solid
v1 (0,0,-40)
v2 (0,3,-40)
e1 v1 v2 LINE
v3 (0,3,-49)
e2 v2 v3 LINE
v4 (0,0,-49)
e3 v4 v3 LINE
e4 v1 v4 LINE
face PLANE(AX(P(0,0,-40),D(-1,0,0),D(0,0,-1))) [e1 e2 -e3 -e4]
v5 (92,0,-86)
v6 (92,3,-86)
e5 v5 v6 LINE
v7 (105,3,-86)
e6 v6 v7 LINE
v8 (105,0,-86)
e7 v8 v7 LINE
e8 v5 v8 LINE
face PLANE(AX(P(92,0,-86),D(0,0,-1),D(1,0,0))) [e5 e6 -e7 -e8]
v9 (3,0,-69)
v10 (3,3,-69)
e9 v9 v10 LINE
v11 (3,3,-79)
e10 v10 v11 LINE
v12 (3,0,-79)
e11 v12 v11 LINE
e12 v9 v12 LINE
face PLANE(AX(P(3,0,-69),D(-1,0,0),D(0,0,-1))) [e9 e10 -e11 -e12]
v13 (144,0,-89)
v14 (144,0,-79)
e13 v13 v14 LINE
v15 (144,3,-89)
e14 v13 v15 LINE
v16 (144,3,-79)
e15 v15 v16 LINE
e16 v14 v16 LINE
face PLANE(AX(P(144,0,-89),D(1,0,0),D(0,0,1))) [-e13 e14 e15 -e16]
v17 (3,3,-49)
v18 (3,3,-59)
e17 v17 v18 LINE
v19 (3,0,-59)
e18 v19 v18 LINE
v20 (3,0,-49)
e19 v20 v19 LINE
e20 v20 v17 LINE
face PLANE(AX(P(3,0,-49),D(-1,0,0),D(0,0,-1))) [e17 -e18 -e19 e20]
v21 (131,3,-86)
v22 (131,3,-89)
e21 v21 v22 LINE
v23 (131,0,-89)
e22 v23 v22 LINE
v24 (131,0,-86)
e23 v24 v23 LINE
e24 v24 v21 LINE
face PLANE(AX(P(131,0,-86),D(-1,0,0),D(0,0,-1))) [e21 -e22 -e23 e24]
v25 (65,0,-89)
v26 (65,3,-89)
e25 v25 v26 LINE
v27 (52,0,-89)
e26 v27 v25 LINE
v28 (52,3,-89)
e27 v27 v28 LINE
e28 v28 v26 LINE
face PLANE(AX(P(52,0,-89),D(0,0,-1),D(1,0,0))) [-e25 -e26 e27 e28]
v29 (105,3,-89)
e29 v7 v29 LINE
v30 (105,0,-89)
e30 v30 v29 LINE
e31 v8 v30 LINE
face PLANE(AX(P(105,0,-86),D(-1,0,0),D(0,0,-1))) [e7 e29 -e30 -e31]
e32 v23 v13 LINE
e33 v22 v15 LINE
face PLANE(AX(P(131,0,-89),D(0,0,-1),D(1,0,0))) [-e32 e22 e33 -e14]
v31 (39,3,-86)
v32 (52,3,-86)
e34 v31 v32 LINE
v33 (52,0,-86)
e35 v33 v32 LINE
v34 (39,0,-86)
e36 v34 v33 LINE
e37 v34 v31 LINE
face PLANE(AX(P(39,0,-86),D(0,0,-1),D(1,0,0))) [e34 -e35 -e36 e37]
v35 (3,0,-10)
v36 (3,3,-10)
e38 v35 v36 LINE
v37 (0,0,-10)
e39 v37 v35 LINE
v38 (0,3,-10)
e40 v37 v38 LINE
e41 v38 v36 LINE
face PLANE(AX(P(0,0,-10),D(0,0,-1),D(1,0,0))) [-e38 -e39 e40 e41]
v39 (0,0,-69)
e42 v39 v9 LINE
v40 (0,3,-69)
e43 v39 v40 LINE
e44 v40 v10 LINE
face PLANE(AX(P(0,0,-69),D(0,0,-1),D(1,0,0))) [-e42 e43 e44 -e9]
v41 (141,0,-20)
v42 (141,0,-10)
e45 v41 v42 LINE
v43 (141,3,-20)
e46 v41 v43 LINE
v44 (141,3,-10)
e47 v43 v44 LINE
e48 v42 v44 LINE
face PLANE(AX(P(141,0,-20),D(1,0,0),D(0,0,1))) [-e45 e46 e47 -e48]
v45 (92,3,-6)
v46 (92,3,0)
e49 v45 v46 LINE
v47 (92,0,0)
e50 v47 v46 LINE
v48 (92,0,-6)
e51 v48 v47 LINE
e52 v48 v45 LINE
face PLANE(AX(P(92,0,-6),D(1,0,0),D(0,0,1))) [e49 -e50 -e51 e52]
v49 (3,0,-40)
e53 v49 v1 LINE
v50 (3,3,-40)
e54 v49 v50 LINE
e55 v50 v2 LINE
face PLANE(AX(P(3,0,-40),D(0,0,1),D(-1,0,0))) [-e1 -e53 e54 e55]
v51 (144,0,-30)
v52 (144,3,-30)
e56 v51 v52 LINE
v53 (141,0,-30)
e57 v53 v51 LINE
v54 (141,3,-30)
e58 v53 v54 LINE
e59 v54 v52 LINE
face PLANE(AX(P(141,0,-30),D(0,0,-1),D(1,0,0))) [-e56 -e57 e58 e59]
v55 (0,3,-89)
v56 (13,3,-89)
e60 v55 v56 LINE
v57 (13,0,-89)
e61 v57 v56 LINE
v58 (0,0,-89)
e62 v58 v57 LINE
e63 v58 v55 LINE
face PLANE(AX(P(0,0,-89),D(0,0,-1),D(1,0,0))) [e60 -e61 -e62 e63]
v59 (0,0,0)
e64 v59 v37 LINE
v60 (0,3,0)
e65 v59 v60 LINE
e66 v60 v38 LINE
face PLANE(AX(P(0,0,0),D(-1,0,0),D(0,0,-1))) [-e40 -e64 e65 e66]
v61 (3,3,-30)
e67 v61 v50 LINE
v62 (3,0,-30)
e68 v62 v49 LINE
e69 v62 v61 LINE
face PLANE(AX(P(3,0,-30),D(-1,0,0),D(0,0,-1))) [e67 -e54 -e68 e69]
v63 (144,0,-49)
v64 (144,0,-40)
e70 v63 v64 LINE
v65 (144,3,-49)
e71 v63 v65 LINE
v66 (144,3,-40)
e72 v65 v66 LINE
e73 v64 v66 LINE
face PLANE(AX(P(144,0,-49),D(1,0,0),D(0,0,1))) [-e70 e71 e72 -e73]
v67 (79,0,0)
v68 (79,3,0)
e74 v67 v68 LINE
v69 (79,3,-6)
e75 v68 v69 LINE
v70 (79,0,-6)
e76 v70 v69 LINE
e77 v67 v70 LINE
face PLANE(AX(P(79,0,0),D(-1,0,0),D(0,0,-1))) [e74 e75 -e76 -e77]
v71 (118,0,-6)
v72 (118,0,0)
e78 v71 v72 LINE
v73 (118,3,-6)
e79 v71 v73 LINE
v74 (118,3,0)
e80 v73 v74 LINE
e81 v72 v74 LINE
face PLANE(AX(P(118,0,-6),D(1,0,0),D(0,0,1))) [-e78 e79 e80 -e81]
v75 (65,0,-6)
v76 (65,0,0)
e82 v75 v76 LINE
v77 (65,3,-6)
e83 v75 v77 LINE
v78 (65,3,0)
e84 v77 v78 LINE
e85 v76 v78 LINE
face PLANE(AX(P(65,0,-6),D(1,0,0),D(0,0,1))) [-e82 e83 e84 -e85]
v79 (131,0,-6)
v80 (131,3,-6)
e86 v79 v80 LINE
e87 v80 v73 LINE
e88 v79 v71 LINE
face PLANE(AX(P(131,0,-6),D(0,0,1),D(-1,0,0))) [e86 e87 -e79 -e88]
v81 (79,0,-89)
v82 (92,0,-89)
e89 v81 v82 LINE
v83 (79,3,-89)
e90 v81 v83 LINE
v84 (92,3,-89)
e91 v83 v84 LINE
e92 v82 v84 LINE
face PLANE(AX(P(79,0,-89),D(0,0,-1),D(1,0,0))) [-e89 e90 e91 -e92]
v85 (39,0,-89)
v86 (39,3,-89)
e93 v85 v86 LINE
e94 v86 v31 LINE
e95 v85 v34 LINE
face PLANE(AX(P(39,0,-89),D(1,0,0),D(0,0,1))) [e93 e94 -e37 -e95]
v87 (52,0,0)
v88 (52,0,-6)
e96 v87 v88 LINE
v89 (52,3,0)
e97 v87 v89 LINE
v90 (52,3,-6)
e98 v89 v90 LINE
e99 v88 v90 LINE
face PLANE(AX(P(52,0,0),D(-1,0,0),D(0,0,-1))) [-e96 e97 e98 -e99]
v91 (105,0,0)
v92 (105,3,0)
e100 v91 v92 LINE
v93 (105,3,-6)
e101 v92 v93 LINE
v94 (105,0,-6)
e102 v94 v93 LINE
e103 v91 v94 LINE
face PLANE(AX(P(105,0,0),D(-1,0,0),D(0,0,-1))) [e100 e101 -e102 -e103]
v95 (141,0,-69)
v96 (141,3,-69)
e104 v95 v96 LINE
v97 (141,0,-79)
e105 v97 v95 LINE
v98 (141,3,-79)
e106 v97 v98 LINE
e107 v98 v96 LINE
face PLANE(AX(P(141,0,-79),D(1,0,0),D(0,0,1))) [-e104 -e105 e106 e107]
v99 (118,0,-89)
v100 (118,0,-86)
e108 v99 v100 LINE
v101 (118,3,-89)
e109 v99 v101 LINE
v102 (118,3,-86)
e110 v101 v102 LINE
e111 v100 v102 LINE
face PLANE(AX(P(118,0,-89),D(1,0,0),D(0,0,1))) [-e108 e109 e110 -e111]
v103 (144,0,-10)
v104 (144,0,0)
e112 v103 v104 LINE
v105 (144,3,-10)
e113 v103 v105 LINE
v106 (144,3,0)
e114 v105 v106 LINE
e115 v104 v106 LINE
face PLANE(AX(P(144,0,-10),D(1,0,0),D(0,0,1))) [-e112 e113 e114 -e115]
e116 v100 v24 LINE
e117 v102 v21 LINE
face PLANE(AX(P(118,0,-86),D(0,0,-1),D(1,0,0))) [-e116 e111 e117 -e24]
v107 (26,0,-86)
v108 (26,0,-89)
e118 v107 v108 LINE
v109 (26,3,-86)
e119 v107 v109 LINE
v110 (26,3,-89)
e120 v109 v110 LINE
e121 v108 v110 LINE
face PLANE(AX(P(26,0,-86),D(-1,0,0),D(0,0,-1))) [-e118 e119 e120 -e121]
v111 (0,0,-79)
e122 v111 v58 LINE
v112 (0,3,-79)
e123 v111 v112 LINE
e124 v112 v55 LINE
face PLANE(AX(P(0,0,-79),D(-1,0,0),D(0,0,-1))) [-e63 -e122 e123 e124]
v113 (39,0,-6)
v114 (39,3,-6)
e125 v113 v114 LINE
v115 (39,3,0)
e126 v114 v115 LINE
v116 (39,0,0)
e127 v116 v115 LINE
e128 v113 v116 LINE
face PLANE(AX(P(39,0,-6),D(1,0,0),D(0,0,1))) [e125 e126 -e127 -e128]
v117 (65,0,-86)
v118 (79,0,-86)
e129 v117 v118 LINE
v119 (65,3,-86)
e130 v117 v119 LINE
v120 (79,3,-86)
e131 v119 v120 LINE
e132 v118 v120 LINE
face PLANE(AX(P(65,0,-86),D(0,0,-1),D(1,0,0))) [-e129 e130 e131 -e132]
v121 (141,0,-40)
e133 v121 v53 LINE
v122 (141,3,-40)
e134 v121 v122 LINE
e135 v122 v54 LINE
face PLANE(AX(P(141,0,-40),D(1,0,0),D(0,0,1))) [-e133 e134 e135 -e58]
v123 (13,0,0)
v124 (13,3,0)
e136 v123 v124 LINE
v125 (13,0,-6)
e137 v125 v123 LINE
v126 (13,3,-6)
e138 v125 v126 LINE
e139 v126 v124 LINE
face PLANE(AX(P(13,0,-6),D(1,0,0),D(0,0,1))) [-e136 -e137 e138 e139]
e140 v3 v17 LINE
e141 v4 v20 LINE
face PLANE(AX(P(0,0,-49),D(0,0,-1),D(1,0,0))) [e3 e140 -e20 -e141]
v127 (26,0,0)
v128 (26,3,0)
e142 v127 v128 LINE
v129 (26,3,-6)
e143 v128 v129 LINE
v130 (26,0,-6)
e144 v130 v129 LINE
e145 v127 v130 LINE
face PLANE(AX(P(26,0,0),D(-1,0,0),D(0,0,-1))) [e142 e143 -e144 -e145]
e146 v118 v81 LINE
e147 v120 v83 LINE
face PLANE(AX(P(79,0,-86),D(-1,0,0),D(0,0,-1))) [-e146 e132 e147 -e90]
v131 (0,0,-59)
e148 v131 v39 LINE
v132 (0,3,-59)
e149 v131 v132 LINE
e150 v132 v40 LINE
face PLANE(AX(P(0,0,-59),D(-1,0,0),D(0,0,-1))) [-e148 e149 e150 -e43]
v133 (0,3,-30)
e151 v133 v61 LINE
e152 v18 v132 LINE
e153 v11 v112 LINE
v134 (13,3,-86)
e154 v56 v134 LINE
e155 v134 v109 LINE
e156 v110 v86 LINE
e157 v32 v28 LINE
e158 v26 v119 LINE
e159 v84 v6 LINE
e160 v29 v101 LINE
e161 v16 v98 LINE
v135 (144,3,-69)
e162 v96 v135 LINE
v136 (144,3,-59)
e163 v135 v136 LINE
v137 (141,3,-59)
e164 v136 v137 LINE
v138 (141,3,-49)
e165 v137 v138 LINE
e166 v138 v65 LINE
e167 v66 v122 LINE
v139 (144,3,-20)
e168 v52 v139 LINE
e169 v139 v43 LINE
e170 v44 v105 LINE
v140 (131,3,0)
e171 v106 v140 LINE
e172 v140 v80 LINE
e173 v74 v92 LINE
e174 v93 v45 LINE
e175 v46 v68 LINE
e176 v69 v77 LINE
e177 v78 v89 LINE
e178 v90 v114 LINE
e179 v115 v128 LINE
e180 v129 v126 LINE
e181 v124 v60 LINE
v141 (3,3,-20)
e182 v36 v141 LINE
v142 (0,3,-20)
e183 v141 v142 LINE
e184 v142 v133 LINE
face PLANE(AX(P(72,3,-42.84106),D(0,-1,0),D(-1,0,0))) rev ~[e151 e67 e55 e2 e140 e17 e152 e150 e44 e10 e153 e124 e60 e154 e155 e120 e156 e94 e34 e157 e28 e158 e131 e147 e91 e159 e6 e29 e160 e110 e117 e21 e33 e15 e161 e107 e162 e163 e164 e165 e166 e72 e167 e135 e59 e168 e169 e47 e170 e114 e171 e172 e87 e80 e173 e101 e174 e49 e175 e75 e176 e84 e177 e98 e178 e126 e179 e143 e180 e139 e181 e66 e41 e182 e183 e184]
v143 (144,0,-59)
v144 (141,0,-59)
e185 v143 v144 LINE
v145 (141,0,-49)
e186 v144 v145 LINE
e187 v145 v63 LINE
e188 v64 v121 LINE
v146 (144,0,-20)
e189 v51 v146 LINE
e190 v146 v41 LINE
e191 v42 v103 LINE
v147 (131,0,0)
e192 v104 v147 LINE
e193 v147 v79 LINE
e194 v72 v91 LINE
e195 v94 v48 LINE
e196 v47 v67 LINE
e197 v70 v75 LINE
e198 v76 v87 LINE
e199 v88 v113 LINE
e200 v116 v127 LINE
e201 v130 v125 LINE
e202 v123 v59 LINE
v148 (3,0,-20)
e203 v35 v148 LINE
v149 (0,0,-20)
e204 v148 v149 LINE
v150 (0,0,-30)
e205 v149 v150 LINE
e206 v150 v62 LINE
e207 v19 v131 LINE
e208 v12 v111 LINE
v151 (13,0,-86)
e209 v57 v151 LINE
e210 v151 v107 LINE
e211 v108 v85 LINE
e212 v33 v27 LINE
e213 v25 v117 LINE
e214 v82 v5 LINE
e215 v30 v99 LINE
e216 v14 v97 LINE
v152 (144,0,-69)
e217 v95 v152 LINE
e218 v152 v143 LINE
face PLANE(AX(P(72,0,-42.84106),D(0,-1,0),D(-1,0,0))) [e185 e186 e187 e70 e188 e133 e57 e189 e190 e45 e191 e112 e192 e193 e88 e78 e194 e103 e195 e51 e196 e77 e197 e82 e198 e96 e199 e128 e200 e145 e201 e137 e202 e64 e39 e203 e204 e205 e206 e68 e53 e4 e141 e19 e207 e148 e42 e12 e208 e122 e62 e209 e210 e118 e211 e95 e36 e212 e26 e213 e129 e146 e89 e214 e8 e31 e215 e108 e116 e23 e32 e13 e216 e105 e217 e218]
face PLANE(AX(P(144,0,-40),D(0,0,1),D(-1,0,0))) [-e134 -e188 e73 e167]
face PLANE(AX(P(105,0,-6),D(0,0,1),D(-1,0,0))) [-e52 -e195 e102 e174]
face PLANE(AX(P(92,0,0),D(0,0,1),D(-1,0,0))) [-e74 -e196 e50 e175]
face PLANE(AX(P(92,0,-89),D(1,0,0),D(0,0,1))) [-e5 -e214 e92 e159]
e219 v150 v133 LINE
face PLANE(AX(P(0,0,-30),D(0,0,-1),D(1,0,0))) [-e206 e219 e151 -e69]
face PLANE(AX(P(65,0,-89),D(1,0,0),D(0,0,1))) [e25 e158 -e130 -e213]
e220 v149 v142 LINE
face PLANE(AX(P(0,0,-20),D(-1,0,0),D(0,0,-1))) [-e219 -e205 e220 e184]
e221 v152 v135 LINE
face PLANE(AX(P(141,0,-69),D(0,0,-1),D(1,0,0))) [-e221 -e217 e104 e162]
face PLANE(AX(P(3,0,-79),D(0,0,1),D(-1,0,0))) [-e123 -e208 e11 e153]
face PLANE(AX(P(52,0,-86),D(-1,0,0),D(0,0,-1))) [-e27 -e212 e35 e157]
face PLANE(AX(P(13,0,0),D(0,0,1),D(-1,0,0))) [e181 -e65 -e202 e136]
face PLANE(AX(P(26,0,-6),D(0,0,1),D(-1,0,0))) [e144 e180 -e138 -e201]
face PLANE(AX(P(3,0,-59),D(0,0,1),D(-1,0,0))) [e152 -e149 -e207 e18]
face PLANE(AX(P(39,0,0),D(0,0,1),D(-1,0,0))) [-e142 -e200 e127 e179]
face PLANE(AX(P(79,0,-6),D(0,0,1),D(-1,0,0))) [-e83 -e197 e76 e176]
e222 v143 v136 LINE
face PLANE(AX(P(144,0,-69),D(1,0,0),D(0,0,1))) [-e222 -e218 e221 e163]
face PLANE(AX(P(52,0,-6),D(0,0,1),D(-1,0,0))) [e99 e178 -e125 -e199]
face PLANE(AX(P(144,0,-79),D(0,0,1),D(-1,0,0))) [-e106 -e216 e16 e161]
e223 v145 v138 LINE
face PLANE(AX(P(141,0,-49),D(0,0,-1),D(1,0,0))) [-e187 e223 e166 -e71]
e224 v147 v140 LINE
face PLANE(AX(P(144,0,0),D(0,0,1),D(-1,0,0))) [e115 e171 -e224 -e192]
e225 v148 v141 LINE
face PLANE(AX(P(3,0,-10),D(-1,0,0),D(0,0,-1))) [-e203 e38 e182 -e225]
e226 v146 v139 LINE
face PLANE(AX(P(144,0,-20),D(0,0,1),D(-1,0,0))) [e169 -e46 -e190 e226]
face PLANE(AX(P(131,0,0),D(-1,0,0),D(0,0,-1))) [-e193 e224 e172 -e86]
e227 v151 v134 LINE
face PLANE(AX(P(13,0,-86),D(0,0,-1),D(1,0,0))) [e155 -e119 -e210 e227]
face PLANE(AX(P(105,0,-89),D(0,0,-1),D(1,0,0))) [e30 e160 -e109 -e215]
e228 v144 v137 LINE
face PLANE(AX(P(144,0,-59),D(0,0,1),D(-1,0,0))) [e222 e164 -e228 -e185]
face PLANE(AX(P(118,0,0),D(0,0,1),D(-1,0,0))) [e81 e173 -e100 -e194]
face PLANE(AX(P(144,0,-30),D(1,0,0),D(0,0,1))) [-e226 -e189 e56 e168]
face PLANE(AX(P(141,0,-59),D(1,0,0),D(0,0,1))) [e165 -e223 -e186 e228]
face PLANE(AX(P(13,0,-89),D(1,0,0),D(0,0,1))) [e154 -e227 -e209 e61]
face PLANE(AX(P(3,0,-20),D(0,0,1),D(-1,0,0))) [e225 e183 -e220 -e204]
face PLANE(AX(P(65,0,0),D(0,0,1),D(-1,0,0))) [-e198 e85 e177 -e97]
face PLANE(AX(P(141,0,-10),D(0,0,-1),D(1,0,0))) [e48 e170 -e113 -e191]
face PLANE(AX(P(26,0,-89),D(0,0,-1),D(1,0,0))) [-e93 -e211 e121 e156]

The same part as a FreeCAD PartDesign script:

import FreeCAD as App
import Part
import Sketcher

V = App.Vector
Q = App.Units.Quantity


def add_polygon(sketch, points):
    """Adds a closed chain of lines whose ends are joined by coincident constraints."""
    first, n = sketch.GeometryCount, len(points)
    for a, b in zip(points, points[1:] + points[:1]):
        sketch.addGeometry(Part.LineSegment(App.Vector(*a, 0), App.Vector(*b, 0)), False)
    for i in range(n):
        sketch.addConstraint(Sketcher.Constraint("Coincident", first + i, 2, first + (i + 1) % n, 1))

doc = App.newDocument("Part")
params = doc.addObject("Spreadsheet::Sheet", "Params")
for row, (alias, value) in enumerate([
    ("sketch1_width", "13 mm"),
    ("sketch1_width2", "3 mm"),
    ("sketch1_width3", "14 mm"),
    ("sketch1_height", "10 mm"),
    ("sketch1_height2", "9 mm"),
    ("pad1_length", "3 mm"),
], start=1):
    params.set(f"A{row}", alias)
    params.set(f"B{row}", "=" + value)
    params.setAlias(f"B{row}", alias)

body = doc.addObject("PartDesign::Body", "Body")

# Sketch on XZ plane
sketch1 = body.newObject("Sketcher::SketchObject", "Sketch")
sketch1.AttachmentSupport = (doc.getObject("XZ_Plane"), [""])
sketch1.MapMode = "FlatFace"
add_polygon(sketch1, [(39, -89), (26, -89), (26, -86), (13, -86), (13, -89), (0, -89), (0, -79), (3, -79), (3, -69), (0, -69), (0, -59), (3, -59), (3, -49), (0, -49), (0, -40), (3, -40), (3, -30), (0, -30), (0, -20), (3, -20), (3, -10), (0, -10), (0, 0), (13, 0), (13, -6), (26, -6), (26, 0), (39, 0), (39, -6), (52, -6), (52, 0), (65, 0), (65, -6), (79, -6), (79, 0), (92, 0), (92, -6), (105, -6), (105, 0), (118, 0), (118, -6), (131, -6), (131, 0), (144, 0), (144, -10), (141, -10), (141, -20), (144, -20), (144, -30), (141, -30), (141, -40), (144, -40), (144, -49), (141, -49), (141, -59), (144, -59), (144, -69), (141, -69), (141, -79), (144, -79), (144, -89), (131, -89), (131, -86), (118, -86), (118, -89), (105, -89), (105, -86), (92, -86), (92, -89), (79, -89), (79, -86), (65, -86), (65, -89), (52, -89), (52, -86), (39, -86)])  # lines 0-75
sketch1.addConstraint([
    Sketcher.Constraint("Horizontal", 0),
    Sketcher.Constraint("Vertical", 1),
    Sketcher.Constraint("Horizontal", 2),
    Sketcher.Constraint("Vertical", 3),
    Sketcher.Constraint("Horizontal", 4),
    Sketcher.Constraint("Vertical", 5),
    Sketcher.Constraint("Horizontal", 6),
    Sketcher.Constraint("Vertical", 7),
    Sketcher.Constraint("Horizontal", 8),
    Sketcher.Constraint("Vertical", 9),
    Sketcher.Constraint("Horizontal", 10),
    Sketcher.Constraint("Vertical", 11),
    Sketcher.Constraint("Horizontal", 12),
    Sketcher.Constraint("Vertical", 13),
    Sketcher.Constraint("Horizontal", 14),
    Sketcher.Constraint("Vertical", 15),
    Sketcher.Constraint("Horizontal", 16),
    Sketcher.Constraint("Vertical", 17),
    Sketcher.Constraint("Horizontal", 18),
    Sketcher.Constraint("Vertical", 19),
    Sketcher.Constraint("Horizontal", 20),
    Sketcher.Constraint("Vertical", 21),
    Sketcher.Constraint("Horizontal", 22),
    Sketcher.Constraint("Vertical", 23),
    Sketcher.Constraint("Horizontal", 24),
    Sketcher.Constraint("Vertical", 25),
    Sketcher.Constraint("Horizontal", 26),
    Sketcher.Constraint("Vertical", 27),
    Sketcher.Constraint("Horizontal", 28),
    Sketcher.Constraint("Vertical", 29),
    Sketcher.Constraint("Horizontal", 30),
    Sketcher.Constraint("Vertical", 31),
    Sketcher.Constraint("Horizontal", 32),
    Sketcher.Constraint("Vertical", 33),
    Sketcher.Constraint("Horizontal", 34),
    Sketcher.Constraint("Vertical", 35),
    Sketcher.Constraint("Horizontal", 36),
    Sketcher.Constraint("Vertical", 37),
    Sketcher.Constraint("Horizontal", 38),
    Sketcher.Constraint("Vertical", 39),
    Sketcher.Constraint("Horizontal", 40),
    Sketcher.Constraint("Vertical", 41),
    Sketcher.Constraint("Horizontal", 42),
    Sketcher.Constraint("Vertical", 43),
    Sketcher.Constraint("Horizontal", 44),
    Sketcher.Constraint("Vertical", 45),
    Sketcher.Constraint("Horizontal", 46),
    Sketcher.Constraint("Vertical", 47),
    Sketcher.Constraint("Horizontal", 48),
    Sketcher.Constraint("Vertical", 49),
    Sketcher.Constraint("Horizontal", 50),
    Sketcher.Constraint("Vertical", 51),
    Sketcher.Constraint("Horizontal", 52),
    Sketcher.Constraint("Vertical", 53),
    Sketcher.Constraint("Horizontal", 54),
    Sketcher.Constraint("Vertical", 55),
    Sketcher.Constraint("Horizontal", 56),
    Sketcher.Constraint("Vertical", 57),
    Sketcher.Constraint("Horizontal", 58),
    Sketcher.Constraint("Vertical", 59),
    Sketcher.Constraint("Horizontal", 60),
    Sketcher.Constraint("Vertical", 61),
    Sketcher.Constraint("Horizontal", 62),
    Sketcher.Constraint("Vertical", 63),
    Sketcher.Constraint("Horizontal", 64),
    Sketcher.Constraint("Vertical", 65),
    Sketcher.Constraint("Horizontal", 66),
    Sketcher.Constraint("Vertical", 67),
    Sketcher.Constraint("Horizontal", 68),
    Sketcher.Constraint("Vertical", 69),
    Sketcher.Constraint("Horizontal", 70),
    Sketcher.Constraint("Vertical", 71),
    Sketcher.Constraint("Horizontal", 72),
    Sketcher.Constraint("Vertical", 73),
    Sketcher.Constraint("Horizontal", 74),
    Sketcher.Constraint("Vertical", 75),
    Sketcher.Constraint("Coincident", 21, 2, -1, 1),
    Sketcher.Constraint("PointOnObject", 4, 2, -2),
    Sketcher.Constraint("PointOnObject", 8, 2, -2),
    Sketcher.Constraint("PointOnObject", 12, 2, -2),
    Sketcher.Constraint("PointOnObject", 16, 2, -2),
    Sketcher.Constraint("PointOnObject", 25, 2, -1),
    Sketcher.Constraint("PointOnObject", 29, 2, -1),
    Sketcher.Constraint("PointOnObject", 33, 2, -1),
    Sketcher.Constraint("PointOnObject", 37, 2, -1),
    Sketcher.Constraint("PointOnObject", 41, 2, -1),
    Sketcher.Constraint("Horizontal", 0, 2, 3, 2),
    Sketcher.Constraint("Horizontal", 24, 2, 27, 2),
    Sketcher.Constraint("Horizontal", 28, 2, 31, 2),
    Sketcher.Constraint("Horizontal", 32, 2, 35, 2),
    Sketcher.Constraint("Horizontal", 36, 2, 39, 2),
    Sketcher.Constraint("Horizontal", 20, 2, 43, 2),
    Sketcher.Constraint("Horizontal", 18, 2, 45, 2),
    Sketcher.Constraint("Horizontal", 16, 2, 47, 2),
    Sketcher.Constraint("Horizontal", 14, 2, 49, 2),
    Sketcher.Constraint("Horizontal", 12, 2, 51, 2),
    Sketcher.Constraint("Horizontal", 10, 2, 53, 2),
    Sketcher.Constraint("Horizontal", 8, 2, 55, 2),
    Sketcher.Constraint("Horizontal", 6, 2, 57, 2),
    Sketcher.Constraint("Horizontal", 4, 2, 59, 2),
    Sketcher.Constraint("Horizontal", 2, 2, 61, 2),
    Sketcher.Constraint("Horizontal", 60, 2, 63, 2),
    Sketcher.Constraint("Horizontal", 62, 2, 65, 2),
    Sketcher.Constraint("Horizontal", 64, 2, 67, 2),
    Sketcher.Constraint("Horizontal", 66, 2, 69, 2),
    Sketcher.Constraint("Horizontal", 68, 2, 71, 2),
    Sketcher.Constraint("Horizontal", 70, 2, 73, 2),
    Sketcher.Constraint("Vertical", 7, 2, 10, 2),
    Sketcher.Constraint("Vertical", 11, 2, 14, 2),
    Sketcher.Constraint("Vertical", 15, 2, 18, 2),
    Sketcher.Constraint("Vertical", 3, 2, 22, 2),
    Sketcher.Constraint("Vertical", 1, 2, 24, 2),
    Sketcher.Constraint("Vertical", 43, 2, 46, 2),
    Sketcher.Constraint("Vertical", 45, 2, 48, 2),
    Sketcher.Constraint("Vertical", 47, 2, 50, 2),
    Sketcher.Constraint("Vertical", 49, 2, 52, 2),
    Sketcher.Constraint("Vertical", 51, 2, 54, 2),
    Sketcher.Constraint("Vertical", 53, 2, 56, 2),
    Sketcher.Constraint("Vertical", 55, 2, 58, 2),
    Sketcher.Constraint("Vertical", 41, 2, 60, 2),
    Sketcher.Constraint("Vertical", 39, 2, 62, 2),
    Sketcher.Constraint("Vertical", 37, 2, 64, 2),
    Sketcher.Constraint("Vertical", 35, 2, 66, 2),
    Sketcher.Constraint("Vertical", 33, 2, 68, 2),
    Sketcher.Constraint("Vertical", 31, 2, 70, 2),
    Sketcher.Constraint("Vertical", 29, 2, 72, 2),
    Sketcher.Constraint("Vertical", 27, 2, 74, 2),
    Sketcher.Constraint("Equal", 0, 2),
    Sketcher.Constraint("Equal", 2, 4),
    Sketcher.Constraint("Equal", 26, 28),
    Sketcher.Constraint("Equal", 28, 30),
    Sketcher.Constraint("Equal", 30, 34),
    Sketcher.Constraint("Equal", 34, 36),
    Sketcher.Constraint("Equal", 36, 38),
    Sketcher.Constraint("Equal", 38, 40),
    Sketcher.Constraint("Equal", 40, 42),
    Sketcher.Constraint("Equal", 20, 44),
    Sketcher.Constraint("Equal", 58, 1),
    Sketcher.Constraint("Equal", 5, 7),
    Sketcher.Constraint("Equal", 7, 9),
    Sketcher.Constraint("Equal", 9, 11),
    Sketcher.Constraint("Equal", 11, 15),
    Sketcher.Constraint("Equal", 15, 17),
    Sketcher.Constraint("Equal", 17, 19),
    Sketcher.Constraint("Equal", 19, 21),
    Sketcher.Constraint("DistanceX", 0, 2, 0, 1, Q("13 mm")),
    Sketcher.Constraint("DistanceX", 6, 1, 6, 2, Q("3 mm")),
    Sketcher.Constraint("DistanceX", 32, 1, 32, 2, Q("14 mm")),
    Sketcher.Constraint("DistanceY", 5, 1, 5, 2, Q("10 mm")),
    Sketcher.Constraint("DistanceY", 13, 1, 13, 2, Q("9 mm")),
    Sketcher.Constraint("DistanceY", 23, 2, 23, 1, Q("6 mm")),
])
sketch1.setExpression("Constraints[221]", "Params.sketch1_width")
sketch1.setExpression("Constraints[222]", "Params.sketch1_width2")
sketch1.setExpression("Constraints[223]", "Params.sketch1_width3")
sketch1.setExpression("Constraints[224]", "Params.sketch1_height")
sketch1.setExpression("Constraints[225]", "Params.sketch1_height2")
pad1 = body.newObject("PartDesign::Pad", "Pad")
pad1.Profile = sketch1
pad1.setExpression("Length", "Params.pad1_length")
pad1.Reversed = True

doc.recompute()
